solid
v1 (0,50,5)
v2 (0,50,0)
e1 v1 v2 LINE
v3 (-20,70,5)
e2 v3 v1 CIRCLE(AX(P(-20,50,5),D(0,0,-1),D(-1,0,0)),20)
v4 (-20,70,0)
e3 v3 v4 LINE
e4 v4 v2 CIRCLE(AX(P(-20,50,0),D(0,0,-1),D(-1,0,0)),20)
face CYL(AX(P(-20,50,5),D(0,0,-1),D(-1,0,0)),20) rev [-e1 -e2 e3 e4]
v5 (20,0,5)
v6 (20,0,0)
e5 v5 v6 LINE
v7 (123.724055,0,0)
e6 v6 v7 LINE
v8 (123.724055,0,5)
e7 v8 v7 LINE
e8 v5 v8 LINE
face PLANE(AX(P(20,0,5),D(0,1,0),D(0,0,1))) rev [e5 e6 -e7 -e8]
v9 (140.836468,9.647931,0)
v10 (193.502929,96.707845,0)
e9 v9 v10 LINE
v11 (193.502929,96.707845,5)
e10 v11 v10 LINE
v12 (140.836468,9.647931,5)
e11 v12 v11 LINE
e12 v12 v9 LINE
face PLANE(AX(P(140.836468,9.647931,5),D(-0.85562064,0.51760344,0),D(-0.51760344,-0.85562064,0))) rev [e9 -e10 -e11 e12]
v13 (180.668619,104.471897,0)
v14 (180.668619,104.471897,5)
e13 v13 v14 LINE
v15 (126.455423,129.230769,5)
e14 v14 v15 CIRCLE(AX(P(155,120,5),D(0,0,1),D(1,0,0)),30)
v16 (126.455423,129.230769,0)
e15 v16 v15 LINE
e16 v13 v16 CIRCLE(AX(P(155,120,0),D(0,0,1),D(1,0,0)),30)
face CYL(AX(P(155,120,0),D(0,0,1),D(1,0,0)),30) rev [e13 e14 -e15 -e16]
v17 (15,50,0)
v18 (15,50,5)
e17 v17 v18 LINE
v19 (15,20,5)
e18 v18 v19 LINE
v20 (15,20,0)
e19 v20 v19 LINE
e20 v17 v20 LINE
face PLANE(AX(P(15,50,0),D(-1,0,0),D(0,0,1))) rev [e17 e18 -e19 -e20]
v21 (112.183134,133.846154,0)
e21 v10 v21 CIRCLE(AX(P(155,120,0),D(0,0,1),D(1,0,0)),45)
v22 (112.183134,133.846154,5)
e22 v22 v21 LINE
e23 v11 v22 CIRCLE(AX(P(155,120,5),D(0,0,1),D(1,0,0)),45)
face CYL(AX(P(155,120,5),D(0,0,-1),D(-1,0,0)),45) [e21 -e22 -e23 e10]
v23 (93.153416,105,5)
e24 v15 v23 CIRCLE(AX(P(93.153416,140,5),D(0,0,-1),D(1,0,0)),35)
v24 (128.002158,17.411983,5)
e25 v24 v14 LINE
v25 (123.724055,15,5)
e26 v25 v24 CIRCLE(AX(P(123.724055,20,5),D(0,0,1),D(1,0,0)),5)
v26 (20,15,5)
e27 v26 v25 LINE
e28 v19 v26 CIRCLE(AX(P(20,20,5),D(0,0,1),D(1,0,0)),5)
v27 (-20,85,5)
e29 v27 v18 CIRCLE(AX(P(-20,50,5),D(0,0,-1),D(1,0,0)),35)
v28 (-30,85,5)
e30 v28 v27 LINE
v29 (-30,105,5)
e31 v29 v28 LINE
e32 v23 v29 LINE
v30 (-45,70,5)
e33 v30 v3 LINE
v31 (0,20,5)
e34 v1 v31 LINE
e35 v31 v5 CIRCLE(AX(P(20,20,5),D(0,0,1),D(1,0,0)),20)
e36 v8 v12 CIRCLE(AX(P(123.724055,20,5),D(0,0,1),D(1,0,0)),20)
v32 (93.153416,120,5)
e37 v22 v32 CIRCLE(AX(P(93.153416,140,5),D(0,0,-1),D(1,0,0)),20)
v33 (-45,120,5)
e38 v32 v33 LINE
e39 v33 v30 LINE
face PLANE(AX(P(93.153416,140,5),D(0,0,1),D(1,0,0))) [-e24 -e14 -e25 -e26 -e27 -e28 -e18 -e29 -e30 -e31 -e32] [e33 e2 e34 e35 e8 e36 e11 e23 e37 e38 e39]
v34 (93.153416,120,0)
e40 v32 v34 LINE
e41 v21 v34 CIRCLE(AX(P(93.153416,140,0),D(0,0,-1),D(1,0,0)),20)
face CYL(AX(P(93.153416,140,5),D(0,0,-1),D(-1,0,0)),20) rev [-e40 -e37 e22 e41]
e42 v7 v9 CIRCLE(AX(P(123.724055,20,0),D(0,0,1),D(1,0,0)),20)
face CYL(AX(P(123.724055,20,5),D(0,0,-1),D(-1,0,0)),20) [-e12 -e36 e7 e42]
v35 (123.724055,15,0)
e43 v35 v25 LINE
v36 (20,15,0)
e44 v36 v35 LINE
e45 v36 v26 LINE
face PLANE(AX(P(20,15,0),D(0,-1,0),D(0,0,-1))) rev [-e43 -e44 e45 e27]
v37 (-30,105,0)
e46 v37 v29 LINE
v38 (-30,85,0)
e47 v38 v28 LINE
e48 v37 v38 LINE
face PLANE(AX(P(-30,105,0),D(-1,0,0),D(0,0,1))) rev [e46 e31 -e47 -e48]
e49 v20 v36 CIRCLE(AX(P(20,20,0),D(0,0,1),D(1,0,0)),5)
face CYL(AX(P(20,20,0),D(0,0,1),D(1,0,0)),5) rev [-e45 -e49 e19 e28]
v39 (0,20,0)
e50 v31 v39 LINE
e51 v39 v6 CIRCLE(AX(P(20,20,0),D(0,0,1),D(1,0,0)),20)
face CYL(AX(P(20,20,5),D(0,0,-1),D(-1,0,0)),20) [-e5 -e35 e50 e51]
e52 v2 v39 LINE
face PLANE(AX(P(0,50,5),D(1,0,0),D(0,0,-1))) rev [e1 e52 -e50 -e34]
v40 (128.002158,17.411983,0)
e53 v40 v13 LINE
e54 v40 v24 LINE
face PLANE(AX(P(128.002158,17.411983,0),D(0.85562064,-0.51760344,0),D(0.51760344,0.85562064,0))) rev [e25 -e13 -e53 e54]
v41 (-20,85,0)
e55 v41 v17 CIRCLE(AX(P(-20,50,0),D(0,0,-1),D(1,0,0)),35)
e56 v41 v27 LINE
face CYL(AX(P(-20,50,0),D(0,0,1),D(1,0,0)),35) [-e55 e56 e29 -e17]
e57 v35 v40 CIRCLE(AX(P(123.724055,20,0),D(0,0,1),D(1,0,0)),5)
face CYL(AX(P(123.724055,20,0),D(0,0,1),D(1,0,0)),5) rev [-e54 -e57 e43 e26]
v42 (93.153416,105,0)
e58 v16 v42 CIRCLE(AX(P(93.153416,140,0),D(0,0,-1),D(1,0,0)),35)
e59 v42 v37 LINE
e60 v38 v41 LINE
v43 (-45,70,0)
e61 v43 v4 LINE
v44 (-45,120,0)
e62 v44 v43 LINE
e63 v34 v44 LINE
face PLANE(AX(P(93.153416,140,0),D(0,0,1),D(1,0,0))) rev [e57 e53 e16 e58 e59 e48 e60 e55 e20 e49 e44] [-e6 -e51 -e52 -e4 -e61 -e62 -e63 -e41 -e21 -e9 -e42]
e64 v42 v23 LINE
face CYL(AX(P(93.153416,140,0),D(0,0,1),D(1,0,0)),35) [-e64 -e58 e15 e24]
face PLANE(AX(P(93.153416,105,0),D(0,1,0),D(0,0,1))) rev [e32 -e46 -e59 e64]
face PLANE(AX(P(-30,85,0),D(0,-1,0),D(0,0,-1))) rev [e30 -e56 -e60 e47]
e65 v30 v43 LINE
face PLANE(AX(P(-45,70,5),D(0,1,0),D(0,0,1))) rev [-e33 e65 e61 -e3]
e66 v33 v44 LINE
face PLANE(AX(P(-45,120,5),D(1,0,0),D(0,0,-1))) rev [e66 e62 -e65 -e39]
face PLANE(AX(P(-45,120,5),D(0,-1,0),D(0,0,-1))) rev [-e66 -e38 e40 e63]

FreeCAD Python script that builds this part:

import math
import FreeCAD as App
import Part
import Sketcher

V = App.Vector

doc = App.newDocument("Part")
body = doc.addObject("PartDesign::Body", "Body")

# Sketch on XY plane
sketch1 = body.newObject("Sketcher::SketchObject", "Sketch")
sketch1.AttachmentSupport = (doc.getObject("XY_Plane"), [""])
sketch1.MapMode = "FlatFace"
sketch1.addGeometry(Part.LineSegment(V(-45, 120, 0), V(-45, 70, 0)), False)
sketch1.addGeometry(Part.LineSegment(V(-45, 70, 0), V(-20, 70, 0)), False)
sketch1.addGeometry(Part.ArcOfCircle(Part.Circle(V(-20, 50, 0), V(0, 0, 1), 20), math.radians(0), math.radians(90)), False)
sketch1.addGeometry(Part.LineSegment(V(0, 50, 0), V(0, 20, 0)), False)
sketch1.addGeometry(Part.ArcOfCircle(Part.Circle(V(20, 20, 0), V(0, 0, 1), 20), math.radians(180), math.radians(270)), False)
sketch1.addGeometry(Part.LineSegment(V(20, 0, 0), V(124, 0, 0)), False)
sketch1.addGeometry(Part.ArcOfCircle(Part.Circle(V(124, 20, 0), V(0, 0, 1), 20), math.radians(-90), math.radians(-31)), False)
sketch1.addGeometry(Part.LineSegment(V(141, 10, 0), V(194, 97, 0)), False)
sketch1.addGeometry(Part.ArcOfCircle(Part.Circle(V(155, 120, 0), V(0, 0, 1), 45), math.radians(-31), math.radians(162)), False)
sketch1.addGeometry(Part.ArcOfCircle(Part.Circle(V(93, 140, 0), V(0, 0, 1), 20), math.radians(-90), math.radians(-18)), False)
sketch1.addGeometry(Part.LineSegment(V(93, 120, 0), V(-45, 120, 0)), False)
sketch1.addConstraint(Sketcher.Constraint("Coincident", 0, 2, 1, 1))
sketch1.addConstraint(Sketcher.Constraint("Tangent", 1, 2, 2, 2))
sketch1.addConstraint(Sketcher.Constraint("Tangent", 2, 1, 3, 1))
sketch1.addConstraint(Sketcher.Constraint("Tangent", 3, 2, 4, 1))
sketch1.addConstraint(Sketcher.Constraint("Tangent", 4, 2, 5, 1))
sketch1.addConstraint(Sketcher.Constraint("Tangent", 5, 2, 6, 1))
sketch1.addConstraint(Sketcher.Constraint("Tangent", 6, 2, 7, 1))
sketch1.addConstraint(Sketcher.Constraint("Tangent", 7, 2, 8, 1))
sketch1.addConstraint(Sketcher.Constraint("Tangent", 8, 2, 9, 2))
sketch1.addConstraint(Sketcher.Constraint("Tangent", 9, 1, 10, 1))
sketch1.addConstraint(Sketcher.Constraint("Coincident", 10, 2, 0, 1))
sketch1.addConstraint(Sketcher.Constraint("Vertical", 0))
sketch1.addConstraint(Sketcher.Constraint("Horizontal", 1))
sketch1.addConstraint(Sketcher.Constraint("Vertical", 3))
sketch1.addConstraint(Sketcher.Constraint("Horizontal", 5))
sketch1.addConstraint(Sketcher.Constraint("Horizontal", 10))
sketch1.addConstraint(Sketcher.Constraint("Equal", 2, 4))
sketch1.addConstraint(Sketcher.Constraint("Equal", 4, 6))
sketch1.addConstraint(Sketcher.Constraint("Equal", 6, 9))
sketch1.addConstraint(Sketcher.Constraint("PointOnObject", 2, 1, -2))
sketch1.addConstraint(Sketcher.Constraint("PointOnObject", 4, 2, -1))
sketch1.addConstraint(Sketcher.Constraint("Horizontal", 8, 3, 9, 1))
sketch1.addConstraint(Sketcher.Constraint("Radius", 2, 20.0))
sketch1.addConstraint(Sketcher.Constraint("Radius", 8, 45.0))
sketch1.addConstraint(Sketcher.Constraint("DistanceX", 1, 1, 1, 2, 25.0))
sketch1.addConstraint(Sketcher.Constraint("DistanceY", 0, 2, 0, 1, 50.0))
sketch1.addConstraint(Sketcher.Constraint("DistanceY", 3, 2, 3, 1, 30.0))
sketch1.addConstraint(Sketcher.Constraint("DistanceX", -1, 1, 8, 3, 155.0))
sketch1.addConstraint(Sketcher.Constraint("Distance", 7, 101.750601))
pad1 = body.newObject("PartDesign::Pad", "Pad")
pad1.Profile = sketch1
pad1.Length = 5

# Sketch on XY plane
sketch2 = body.newObject("Sketcher::SketchObject", "Sketch001")
sketch2.AttachmentSupport = (doc.getObject("XY_Plane"), [""])
sketch2.MapMode = "FlatFace"
sketch2.AttachmentOffset = App.Placement(V(0, 0, 5), App.Rotation())
sketch2.addGeometry(Part.LineSegment(V(93.2, 105, 0), V(-30, 105, 0)), False)
sketch2.addGeometry(Part.LineSegment(V(-30, 105, 0), V(-30, 85, 0)), False)
sketch2.addGeometry(Part.LineSegment(V(-30, 85, 0), V(-20, 85, 0)), False)
sketch2.addGeometry(Part.ArcOfCircle(Part.Circle(V(-20, 50, 0), V(0, 0, 1), 35), math.radians(0), math.radians(90)), False)
sketch2.addGeometry(Part.LineSegment(V(15, 50, 0), V(15, 20, 0)), False)
sketch2.addGeometry(Part.ArcOfCircle(Part.Circle(V(20, 20, 0), V(0, 0, 1), 5), math.radians(180), math.radians(270)), False)
sketch2.addGeometry(Part.LineSegment(V(20, 15, 0), V(123.7, 15, 0)), False)
sketch2.addGeometry(Part.ArcOfCircle(Part.Circle(V(123.7, 20, 0), V(0, 0, 1), 5), math.radians(-90), math.radians(-31)), False)
sketch2.addGeometry(Part.LineSegment(V(128, 17.4, 0), V(180.7, 104.5, 0)), False)
sketch2.addGeometry(Part.ArcOfCircle(Part.Circle(V(155, 120, 0), V(0, 0, 1), 30), math.radians(-31), math.radians(162)), False)
sketch2.addGeometry(Part.ArcOfCircle(Part.Circle(V(93.2, 140, 0), V(0, 0, 1), 35), math.radians(-90), math.radians(-18)), False)
sketch2.addConstraint(Sketcher.Constraint("Coincident", 0, 2, 1, 1))
sketch2.addConstraint(Sketcher.Constraint("Coincident", 1, 2, 2, 1))
sketch2.addConstraint(Sketcher.Constraint("Tangent", 2, 2, 3, 2))
sketch2.addConstraint(Sketcher.Constraint("Tangent", 3, 1, 4, 1))
sketch2.addConstraint(Sketcher.Constraint("Tangent", 4, 2, 5, 1))
sketch2.addConstraint(Sketcher.Constraint("Tangent", 5, 2, 6, 1))
sketch2.addConstraint(Sketcher.Constraint("Tangent", 6, 2, 7, 1))
sketch2.addConstraint(Sketcher.Constraint("Tangent", 7, 2, 8, 1))
sketch2.addConstraint(Sketcher.Constraint("Tangent", 8, 2, 9, 1))
sketch2.addConstraint(Sketcher.Constraint("Tangent", 9, 2, 10, 2))
sketch2.addConstraint(Sketcher.Constraint("Tangent", 10, 1, 0, 1))
sketch2.addConstraint(Sketcher.Constraint("Horizontal", 0))
sketch2.addConstraint(Sketcher.Constraint("Vertical", 1))
sketch2.addConstraint(Sketcher.Constraint("Horizontal", 2))
sketch2.addConstraint(Sketcher.Constraint("Vertical", 4))
sketch2.addConstraint(Sketcher.Constraint("Horizontal", 6))
sketch2.addConstraint(Sketcher.Constraint("Equal", 5, 7))
sketch2.addConstraint(Sketcher.Constraint("Equal", 3, 10))
sketch2.addConstraint(Sketcher.Constraint("Radius", 3, 35.0))
sketch2.addConstraint(Sketcher.Constraint("Radius", 5, 5.0))
sketch2.addConstraint(Sketcher.Constraint("Radius", 9, 30.0))
sketch2.addConstraint(Sketcher.Constraint("DistanceX", 2, 1, 2, 2, 10.0))
sketch2.addConstraint(Sketcher.Constraint("DistanceY", 1, 2, 1, 1, 20.0))
sketch2.addConstraint(Sketcher.Constraint("DistanceY", 4, 2, 4, 1, 30.0))
sketch2.addConstraint(Sketcher.Constraint("DistanceX", 3, 3, -1, 1, 20.0))
sketch2.addConstraint(Sketcher.Constraint("DistanceY", -1, 1, 3, 3, 50.0))
sketch2.addConstraint(Sketcher.Constraint("DistanceX", -1, 1, 9, 3, 155.0))
sketch2.addConstraint(Sketcher.Constraint("DistanceY", -1, 1, 9, 3, 120.0))
sketch2.addConstraint(Sketcher.Constraint("Distance", 8, 101.750601))
pocket1 = body.newObject("PartDesign::Pocket", "Pocket")
pocket1.Profile = sketch2
pocket1.Type = "ThroughAll"

doc.recompute()
